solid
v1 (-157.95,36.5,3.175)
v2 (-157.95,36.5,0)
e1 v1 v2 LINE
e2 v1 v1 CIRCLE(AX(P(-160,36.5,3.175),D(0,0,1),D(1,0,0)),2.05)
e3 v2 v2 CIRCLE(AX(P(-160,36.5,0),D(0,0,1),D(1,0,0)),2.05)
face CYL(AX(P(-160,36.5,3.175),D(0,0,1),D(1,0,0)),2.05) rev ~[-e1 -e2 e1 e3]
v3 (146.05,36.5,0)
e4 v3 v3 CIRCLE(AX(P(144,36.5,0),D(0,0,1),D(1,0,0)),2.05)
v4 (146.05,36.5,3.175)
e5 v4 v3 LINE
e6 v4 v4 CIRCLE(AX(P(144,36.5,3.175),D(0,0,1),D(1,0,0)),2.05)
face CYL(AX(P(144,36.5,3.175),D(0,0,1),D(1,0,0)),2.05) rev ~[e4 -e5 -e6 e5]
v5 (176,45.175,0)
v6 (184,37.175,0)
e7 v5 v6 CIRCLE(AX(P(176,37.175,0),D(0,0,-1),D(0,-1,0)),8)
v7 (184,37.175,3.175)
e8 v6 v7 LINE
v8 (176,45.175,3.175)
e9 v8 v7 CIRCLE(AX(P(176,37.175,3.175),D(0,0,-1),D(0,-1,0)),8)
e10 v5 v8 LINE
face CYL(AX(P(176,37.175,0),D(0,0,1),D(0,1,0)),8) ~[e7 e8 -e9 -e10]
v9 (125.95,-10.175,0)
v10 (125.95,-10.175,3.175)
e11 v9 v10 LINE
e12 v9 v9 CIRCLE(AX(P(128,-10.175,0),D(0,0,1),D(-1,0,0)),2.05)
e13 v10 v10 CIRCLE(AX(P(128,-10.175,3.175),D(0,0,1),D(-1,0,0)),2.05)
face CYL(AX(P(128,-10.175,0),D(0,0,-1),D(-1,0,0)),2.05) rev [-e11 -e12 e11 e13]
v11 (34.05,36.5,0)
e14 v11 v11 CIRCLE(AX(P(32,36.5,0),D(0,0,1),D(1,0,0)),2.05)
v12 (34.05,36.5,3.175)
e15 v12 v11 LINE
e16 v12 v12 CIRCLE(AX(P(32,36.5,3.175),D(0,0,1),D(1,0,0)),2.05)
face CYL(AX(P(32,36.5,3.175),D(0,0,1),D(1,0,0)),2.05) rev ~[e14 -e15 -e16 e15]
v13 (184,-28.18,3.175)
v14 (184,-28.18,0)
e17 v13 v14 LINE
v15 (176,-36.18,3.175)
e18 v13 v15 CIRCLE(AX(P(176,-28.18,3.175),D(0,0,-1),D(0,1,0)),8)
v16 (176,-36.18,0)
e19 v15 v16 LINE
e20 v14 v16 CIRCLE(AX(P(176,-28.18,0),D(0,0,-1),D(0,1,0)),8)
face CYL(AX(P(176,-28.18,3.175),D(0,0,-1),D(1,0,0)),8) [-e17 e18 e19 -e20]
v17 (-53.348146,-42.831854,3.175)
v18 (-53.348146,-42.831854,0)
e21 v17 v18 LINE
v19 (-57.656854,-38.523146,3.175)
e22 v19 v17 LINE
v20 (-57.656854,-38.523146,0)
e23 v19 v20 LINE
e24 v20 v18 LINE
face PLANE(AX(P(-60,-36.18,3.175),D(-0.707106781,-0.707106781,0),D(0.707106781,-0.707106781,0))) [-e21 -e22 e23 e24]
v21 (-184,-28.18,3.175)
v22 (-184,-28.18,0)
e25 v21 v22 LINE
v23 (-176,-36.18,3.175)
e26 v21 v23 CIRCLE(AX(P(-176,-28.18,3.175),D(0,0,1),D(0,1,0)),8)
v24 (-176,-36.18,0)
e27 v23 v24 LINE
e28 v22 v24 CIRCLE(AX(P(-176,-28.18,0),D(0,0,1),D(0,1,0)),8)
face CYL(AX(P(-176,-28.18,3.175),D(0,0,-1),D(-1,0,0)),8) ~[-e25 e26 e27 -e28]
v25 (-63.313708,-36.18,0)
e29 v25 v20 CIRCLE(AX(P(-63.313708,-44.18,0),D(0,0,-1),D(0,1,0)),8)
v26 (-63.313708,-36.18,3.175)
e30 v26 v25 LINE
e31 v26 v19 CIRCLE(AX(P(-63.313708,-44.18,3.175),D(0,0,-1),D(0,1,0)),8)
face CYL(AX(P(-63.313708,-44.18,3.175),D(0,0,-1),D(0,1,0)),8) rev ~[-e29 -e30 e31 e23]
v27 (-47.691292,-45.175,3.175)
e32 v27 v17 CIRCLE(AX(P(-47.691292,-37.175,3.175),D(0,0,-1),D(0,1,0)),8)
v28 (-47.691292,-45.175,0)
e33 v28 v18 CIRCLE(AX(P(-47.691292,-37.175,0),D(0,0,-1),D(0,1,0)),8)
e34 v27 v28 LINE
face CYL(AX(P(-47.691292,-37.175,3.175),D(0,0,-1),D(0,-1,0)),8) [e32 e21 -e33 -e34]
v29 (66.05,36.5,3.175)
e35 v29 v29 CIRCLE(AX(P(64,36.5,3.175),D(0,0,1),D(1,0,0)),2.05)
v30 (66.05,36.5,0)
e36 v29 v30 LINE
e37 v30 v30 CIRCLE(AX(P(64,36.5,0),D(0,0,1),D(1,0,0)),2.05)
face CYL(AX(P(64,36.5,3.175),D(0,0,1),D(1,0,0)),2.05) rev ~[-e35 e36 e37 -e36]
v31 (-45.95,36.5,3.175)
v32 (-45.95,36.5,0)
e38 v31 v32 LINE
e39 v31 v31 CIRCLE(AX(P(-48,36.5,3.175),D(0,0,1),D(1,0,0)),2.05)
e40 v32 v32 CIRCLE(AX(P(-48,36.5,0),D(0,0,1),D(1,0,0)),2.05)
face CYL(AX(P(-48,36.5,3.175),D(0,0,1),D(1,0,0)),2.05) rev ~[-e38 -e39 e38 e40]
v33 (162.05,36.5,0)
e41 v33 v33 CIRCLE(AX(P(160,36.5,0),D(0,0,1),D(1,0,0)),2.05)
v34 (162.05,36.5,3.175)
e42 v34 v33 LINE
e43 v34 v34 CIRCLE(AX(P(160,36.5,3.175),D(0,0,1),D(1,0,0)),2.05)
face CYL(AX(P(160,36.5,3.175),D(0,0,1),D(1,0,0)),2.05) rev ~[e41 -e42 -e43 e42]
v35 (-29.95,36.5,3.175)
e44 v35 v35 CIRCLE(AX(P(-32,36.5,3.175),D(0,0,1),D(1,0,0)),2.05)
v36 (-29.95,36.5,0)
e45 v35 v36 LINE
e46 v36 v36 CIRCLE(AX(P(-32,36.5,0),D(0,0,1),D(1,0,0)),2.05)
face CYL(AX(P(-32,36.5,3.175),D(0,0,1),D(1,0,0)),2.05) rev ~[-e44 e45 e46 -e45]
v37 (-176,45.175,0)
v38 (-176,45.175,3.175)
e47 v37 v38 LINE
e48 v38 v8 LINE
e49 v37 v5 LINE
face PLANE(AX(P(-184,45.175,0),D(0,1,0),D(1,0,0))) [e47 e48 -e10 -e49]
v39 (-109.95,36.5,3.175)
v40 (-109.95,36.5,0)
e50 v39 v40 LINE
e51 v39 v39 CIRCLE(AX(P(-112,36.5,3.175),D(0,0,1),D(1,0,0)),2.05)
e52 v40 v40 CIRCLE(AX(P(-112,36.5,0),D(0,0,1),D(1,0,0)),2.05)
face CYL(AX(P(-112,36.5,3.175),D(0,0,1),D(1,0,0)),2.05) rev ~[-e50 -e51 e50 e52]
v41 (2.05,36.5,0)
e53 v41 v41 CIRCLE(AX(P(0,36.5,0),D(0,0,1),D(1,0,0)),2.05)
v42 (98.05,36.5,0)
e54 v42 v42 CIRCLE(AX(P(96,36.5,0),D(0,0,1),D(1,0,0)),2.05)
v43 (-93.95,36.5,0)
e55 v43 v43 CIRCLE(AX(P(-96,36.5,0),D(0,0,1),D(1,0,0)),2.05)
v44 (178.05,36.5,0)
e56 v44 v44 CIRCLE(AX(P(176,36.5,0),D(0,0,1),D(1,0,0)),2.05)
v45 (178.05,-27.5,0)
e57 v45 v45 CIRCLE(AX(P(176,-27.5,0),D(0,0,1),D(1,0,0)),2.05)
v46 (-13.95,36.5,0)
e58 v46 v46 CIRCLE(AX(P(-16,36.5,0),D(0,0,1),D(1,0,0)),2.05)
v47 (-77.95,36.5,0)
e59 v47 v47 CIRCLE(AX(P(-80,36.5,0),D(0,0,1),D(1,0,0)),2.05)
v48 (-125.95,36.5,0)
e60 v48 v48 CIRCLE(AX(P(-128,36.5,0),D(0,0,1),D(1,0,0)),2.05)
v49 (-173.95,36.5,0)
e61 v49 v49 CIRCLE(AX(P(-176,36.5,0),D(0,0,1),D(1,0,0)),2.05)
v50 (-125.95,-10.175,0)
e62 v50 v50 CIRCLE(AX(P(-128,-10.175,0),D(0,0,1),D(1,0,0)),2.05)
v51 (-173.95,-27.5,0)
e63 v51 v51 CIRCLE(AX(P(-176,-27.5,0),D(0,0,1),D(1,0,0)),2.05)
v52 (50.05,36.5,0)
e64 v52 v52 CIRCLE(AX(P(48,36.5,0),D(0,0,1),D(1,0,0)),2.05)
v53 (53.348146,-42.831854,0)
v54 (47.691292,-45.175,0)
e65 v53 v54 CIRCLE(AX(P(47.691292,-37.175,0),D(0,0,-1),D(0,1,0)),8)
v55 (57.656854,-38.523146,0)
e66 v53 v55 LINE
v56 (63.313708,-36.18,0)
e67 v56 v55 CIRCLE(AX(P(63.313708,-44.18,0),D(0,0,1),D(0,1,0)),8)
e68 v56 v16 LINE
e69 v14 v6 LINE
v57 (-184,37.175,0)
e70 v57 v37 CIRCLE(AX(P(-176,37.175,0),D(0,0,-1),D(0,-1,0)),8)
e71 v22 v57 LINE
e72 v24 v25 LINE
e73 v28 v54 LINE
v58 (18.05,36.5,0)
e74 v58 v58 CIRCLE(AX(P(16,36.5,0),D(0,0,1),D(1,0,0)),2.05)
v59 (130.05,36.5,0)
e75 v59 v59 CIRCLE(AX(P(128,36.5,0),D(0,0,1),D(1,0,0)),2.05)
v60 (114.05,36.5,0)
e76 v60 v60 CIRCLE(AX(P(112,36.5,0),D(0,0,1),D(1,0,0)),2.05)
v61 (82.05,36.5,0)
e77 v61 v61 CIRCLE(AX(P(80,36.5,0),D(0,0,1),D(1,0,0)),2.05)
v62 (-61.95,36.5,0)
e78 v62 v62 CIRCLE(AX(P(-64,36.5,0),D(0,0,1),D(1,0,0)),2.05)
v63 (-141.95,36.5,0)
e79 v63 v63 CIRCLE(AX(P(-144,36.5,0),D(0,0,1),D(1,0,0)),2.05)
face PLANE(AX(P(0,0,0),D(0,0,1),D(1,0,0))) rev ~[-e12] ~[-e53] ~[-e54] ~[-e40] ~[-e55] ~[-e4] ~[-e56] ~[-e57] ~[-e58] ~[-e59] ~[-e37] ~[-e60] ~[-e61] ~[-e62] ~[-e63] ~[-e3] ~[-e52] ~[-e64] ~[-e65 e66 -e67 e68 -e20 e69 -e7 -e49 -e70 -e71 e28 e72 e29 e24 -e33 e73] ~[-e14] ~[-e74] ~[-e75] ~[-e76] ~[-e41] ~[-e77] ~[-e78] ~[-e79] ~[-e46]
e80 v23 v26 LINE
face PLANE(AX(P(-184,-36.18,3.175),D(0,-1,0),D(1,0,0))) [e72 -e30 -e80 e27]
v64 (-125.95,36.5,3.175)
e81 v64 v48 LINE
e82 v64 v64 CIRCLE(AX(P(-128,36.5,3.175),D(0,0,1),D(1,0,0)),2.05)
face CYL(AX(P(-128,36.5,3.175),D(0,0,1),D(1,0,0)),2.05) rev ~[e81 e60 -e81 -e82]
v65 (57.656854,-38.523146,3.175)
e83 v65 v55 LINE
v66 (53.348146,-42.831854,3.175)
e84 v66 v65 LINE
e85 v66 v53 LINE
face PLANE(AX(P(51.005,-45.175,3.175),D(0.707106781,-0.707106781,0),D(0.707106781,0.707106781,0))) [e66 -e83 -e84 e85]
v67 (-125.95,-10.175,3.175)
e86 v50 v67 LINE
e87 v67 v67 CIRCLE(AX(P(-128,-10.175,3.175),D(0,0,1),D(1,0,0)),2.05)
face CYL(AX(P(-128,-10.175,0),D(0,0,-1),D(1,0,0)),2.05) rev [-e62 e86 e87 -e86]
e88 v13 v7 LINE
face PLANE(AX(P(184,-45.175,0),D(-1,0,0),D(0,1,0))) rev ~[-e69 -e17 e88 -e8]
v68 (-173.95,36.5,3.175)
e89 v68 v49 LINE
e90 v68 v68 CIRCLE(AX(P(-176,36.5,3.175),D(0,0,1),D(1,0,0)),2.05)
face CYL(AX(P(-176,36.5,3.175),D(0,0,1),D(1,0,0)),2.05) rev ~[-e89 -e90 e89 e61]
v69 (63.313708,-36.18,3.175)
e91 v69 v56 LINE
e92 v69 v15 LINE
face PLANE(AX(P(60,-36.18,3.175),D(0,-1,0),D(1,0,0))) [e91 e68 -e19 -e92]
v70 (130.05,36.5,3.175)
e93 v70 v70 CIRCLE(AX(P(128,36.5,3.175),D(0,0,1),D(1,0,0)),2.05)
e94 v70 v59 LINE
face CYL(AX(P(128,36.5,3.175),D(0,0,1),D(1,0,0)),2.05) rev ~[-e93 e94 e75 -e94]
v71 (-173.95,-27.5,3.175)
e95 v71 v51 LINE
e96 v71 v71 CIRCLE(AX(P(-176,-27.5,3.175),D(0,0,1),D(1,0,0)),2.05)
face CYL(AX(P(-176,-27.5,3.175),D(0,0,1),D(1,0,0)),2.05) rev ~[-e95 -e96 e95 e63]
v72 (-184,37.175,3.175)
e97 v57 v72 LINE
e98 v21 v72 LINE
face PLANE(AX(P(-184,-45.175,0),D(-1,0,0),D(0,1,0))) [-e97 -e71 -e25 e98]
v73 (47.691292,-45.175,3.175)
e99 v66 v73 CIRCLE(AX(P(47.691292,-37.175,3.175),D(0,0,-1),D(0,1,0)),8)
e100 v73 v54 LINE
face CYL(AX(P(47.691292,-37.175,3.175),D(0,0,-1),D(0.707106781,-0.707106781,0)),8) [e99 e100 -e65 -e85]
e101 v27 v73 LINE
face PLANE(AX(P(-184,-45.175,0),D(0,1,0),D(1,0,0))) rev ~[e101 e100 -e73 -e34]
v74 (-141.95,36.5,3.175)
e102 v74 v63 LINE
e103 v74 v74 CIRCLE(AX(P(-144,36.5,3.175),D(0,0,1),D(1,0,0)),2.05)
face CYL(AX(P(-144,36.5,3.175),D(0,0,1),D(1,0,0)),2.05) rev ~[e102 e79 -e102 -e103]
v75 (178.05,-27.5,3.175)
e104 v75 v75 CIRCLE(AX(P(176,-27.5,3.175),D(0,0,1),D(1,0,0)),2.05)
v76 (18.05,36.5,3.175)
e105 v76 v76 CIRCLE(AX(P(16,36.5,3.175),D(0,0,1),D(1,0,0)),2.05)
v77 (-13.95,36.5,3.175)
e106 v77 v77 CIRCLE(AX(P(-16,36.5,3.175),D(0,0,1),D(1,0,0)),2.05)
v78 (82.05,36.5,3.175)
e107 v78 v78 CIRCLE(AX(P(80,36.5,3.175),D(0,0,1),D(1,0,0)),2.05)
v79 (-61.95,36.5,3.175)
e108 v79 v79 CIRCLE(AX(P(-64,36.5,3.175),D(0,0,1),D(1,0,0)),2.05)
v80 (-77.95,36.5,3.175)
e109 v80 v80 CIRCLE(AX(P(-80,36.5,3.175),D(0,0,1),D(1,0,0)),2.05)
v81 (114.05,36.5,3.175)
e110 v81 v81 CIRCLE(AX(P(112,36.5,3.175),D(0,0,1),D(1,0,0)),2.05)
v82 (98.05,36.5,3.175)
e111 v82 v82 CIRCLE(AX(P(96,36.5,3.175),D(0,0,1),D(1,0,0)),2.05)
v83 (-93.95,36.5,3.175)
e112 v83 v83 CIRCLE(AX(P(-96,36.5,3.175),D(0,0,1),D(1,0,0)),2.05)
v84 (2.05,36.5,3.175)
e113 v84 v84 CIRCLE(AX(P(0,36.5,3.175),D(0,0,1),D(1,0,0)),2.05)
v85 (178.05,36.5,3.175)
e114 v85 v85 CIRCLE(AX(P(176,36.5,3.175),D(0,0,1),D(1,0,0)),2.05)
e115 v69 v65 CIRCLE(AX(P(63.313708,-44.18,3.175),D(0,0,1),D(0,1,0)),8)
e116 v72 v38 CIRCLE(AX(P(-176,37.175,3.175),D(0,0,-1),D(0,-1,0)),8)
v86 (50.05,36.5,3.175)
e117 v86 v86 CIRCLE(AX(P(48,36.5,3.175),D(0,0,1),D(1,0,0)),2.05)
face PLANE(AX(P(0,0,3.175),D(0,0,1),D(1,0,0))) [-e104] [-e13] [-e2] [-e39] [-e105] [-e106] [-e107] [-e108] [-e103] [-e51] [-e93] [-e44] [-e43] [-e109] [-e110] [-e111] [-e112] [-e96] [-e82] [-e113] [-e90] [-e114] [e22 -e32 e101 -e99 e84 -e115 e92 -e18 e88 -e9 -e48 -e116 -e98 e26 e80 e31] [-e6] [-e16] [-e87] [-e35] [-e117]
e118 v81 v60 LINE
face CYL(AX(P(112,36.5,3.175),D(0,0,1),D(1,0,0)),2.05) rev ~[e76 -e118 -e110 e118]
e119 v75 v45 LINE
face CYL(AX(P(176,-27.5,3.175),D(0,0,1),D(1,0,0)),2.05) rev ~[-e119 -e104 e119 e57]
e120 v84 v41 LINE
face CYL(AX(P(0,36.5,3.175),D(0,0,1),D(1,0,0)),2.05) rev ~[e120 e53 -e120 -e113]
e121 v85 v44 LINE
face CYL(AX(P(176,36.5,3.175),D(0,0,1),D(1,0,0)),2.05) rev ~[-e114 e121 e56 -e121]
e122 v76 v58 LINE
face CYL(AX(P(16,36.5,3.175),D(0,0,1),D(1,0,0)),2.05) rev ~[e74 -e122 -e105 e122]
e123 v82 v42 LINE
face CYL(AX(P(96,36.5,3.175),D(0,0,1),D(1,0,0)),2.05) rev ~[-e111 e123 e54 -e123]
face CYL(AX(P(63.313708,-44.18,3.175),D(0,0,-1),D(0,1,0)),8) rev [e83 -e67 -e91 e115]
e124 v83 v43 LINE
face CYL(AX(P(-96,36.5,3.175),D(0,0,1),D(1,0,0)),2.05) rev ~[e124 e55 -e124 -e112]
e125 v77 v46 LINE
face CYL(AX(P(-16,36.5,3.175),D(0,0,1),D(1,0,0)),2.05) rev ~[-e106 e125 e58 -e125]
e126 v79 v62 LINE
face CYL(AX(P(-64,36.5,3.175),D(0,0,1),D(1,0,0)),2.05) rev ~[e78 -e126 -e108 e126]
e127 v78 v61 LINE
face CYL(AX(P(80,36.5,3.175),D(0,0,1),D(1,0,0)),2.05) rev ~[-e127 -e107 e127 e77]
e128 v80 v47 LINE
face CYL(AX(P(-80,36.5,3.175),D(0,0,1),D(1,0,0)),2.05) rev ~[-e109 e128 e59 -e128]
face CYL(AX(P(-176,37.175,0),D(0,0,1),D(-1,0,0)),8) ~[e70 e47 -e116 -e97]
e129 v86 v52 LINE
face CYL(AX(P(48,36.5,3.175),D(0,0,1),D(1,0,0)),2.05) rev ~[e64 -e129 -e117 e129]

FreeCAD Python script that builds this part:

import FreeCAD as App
import Part
import Sketcher
Q = App.Units.Quantity


def edges_at(feature, points):
    """Names of the edges that pass closest to the given points."""
    edges = feature.Shape.Edges
    near = lambda p: min(range(len(edges)), key=lambda i: edges[i].distToShape(Part.Vertex(*p))[0])
    return sorted({f"Edge{near(p) + 1}" for p in points})


def add_polygon(sketch, points):
    """Adds a closed chain of lines whose ends are joined by coincident constraints."""
    first, n = sketch.GeometryCount, len(points)
    for a, b in zip(points, points[1:] + points[:1]):
        sketch.addGeometry(Part.LineSegment(App.Vector(*a, 0), App.Vector(*b, 0)), False)
    for i in range(n):
        sketch.addConstraint(Sketcher.Constraint("Coincident", first + i, 2, first + (i + 1) % n, 1))

doc = App.newDocument("Part")
body = doc.addObject("PartDesign::Body", "Body")

sketch1 = body.newObject("Sketcher::SketchObject", "Sketch")
sketch1.AttachmentSupport = (doc.getObject("XY_Plane"), [""])
sketch1.MapMode = "FlatFace"
add_polygon(sketch1, [(-184, 45.175), (-184, -45.175), (184, -45.175), (184, 45.175)])
sketch1.addGeometry(Part.Circle(App.Vector(-128, -10.175, 0), App.Vector(0, 0, 1), 2.05), False)
sketch1.addGeometry(Part.Circle(App.Vector(128, -10.175, 0), App.Vector(0, 0, 1), 2.05), False)
sketch1.addConstraint([
    Sketcher.Constraint("Vertical", 0),
    Sketcher.Constraint("Horizontal", 1),
    Sketcher.Constraint("Vertical", 2),
    Sketcher.Constraint("Horizontal", 3),
    Sketcher.Constraint("Equal", 4, 5),
    Sketcher.Constraint("Symmetric", 0, 2, 2, 2, -1, 1),
    Sketcher.Constraint("Symmetric", 4, 3, 5, 3, -2),
    Sketcher.Constraint("Diameter", 4, Q("4.1 mm")),
    Sketcher.Constraint("DistanceX", 1, 1, 1, 2, Q("368 mm")),
    Sketcher.Constraint("DistanceX", 4, 3, -1, 1, Q("128 mm")),
    Sketcher.Constraint("DistanceY", 0, 2, 4, 3, Q("35 mm")),
    Sketcher.Constraint("DistanceY", 0, 2, 0, 1, Q("90.35 mm")),
])
pad1 = body.newObject("PartDesign::Pad", "Pad")
pad1.Profile = sketch1
pad1.Length = 3.175

sketch2 = body.newObject("Sketcher::SketchObject", "Sketch001")
sketch2.AttachmentSupport = (doc.getObject("XY_Plane"), [""])
sketch2.MapMode = "FlatFace"
sketch2.AttachmentOffset = App.Placement(App.Vector(0, 0, 3.175), App.Rotation())
sketch2.addGeometry([
    Part.Circle(App.Vector(-176, 36.5, 0), App.Vector(0, 0, 1), 2.05),
    Part.Circle(App.Vector(-160, 36.5, 0), App.Vector(0, 0, 1), 2.05),
    Part.Circle(App.Vector(-144, 36.5, 0), App.Vector(0, 0, 1), 2.05),
    Part.Circle(App.Vector(-128, 36.5, 0), App.Vector(0, 0, 1), 2.05),
    Part.Circle(App.Vector(-112, 36.5, 0), App.Vector(0, 0, 1), 2.05),
    Part.Circle(App.Vector(-96, 36.5, 0), App.Vector(0, 0, 1), 2.05),
    Part.Circle(App.Vector(-80, 36.5, 0), App.Vector(0, 0, 1), 2.05),
    Part.Circle(App.Vector(-64, 36.5, 0), App.Vector(0, 0, 1), 2.05),
    Part.Circle(App.Vector(-48, 36.5, 0), App.Vector(0, 0, 1), 2.05),
    Part.Circle(App.Vector(-32, 36.5, 0), App.Vector(0, 0, 1), 2.05),
    Part.Circle(App.Vector(-16, 36.5, 0), App.Vector(0, 0, 1), 2.05),
    Part.Circle(App.Vector(0, 36.5, 0), App.Vector(0, 0, 1), 2.05),
    Part.Circle(App.Vector(16, 36.5, 0), App.Vector(0, 0, 1), 2.05),
    Part.Circle(App.Vector(32, 36.5, 0), App.Vector(0, 0, 1), 2.05),
    Part.Circle(App.Vector(48, 36.5, 0), App.Vector(0, 0, 1), 2.05),
    Part.Circle(App.Vector(64, 36.5, 0), App.Vector(0, 0, 1), 2.05),
    Part.Circle(App.Vector(80, 36.5, 0), App.Vector(0, 0, 1), 2.05),
    Part.Circle(App.Vector(96, 36.5, 0), App.Vector(0, 0, 1), 2.05),
    Part.Circle(App.Vector(112, 36.5, 0), App.Vector(0, 0, 1), 2.05),
    Part.Circle(App.Vector(128, 36.5, 0), App.Vector(0, 0, 1), 2.05),
    Part.Circle(App.Vector(144, 36.5, 0), App.Vector(0, 0, 1), 2.05),
    Part.Circle(App.Vector(160, 36.5, 0), App.Vector(0, 0, 1), 2.05),
    Part.Circle(App.Vector(176, 36.5, 0), App.Vector(0, 0, 1), 2.05),
    Part.Circle(App.Vector(176, -27.5, 0), App.Vector(0, 0, 1), 2.05),
    Part.Circle(App.Vector(-176, -27.5, 0), App.Vector(0, 0, 1), 2.05),
], False)
sketch2.addConstraint([
    Sketcher.Constraint("Equal", 0, 1),
    Sketcher.Constraint("Equal", 1, 2),
    Sketcher.Constraint("Equal", 2, 3),
    Sketcher.Constraint("Equal", 3, 4),
    Sketcher.Constraint("Equal", 4, 5),
    Sketcher.Constraint("Equal", 5, 6),
    Sketcher.Constraint("Equal", 6, 7),
    Sketcher.Constraint("Equal", 7, 8),
    Sketcher.Constraint("Equal", 8, 9),
    Sketcher.Constraint("Equal", 9, 10),
    Sketcher.Constraint("Equal", 10, 11),
    Sketcher.Constraint("Equal", 11, 12),
    Sketcher.Constraint("Equal", 12, 13),
    Sketcher.Constraint("Equal", 13, 14),
    Sketcher.Constraint("Equal", 14, 15),
    Sketcher.Constraint("Equal", 15, 16),
    Sketcher.Constraint("Equal", 16, 17),
    Sketcher.Constraint("Equal", 17, 18),
    Sketcher.Constraint("Equal", 18, 19),
    Sketcher.Constraint("Equal", 19, 20),
    Sketcher.Constraint("Equal", 20, 21),
    Sketcher.Constraint("Equal", 21, 22),
    Sketcher.Constraint("Equal", 22, 23),
    Sketcher.Constraint("Equal", 23, 24),
    Sketcher.Constraint("Symmetric", 10, 3, 12, 3, -2),
    Sketcher.Constraint("Symmetric", 9, 3, 13, 3, -2),
    Sketcher.Constraint("Symmetric", 8, 3, 14, 3, -2),
    Sketcher.Constraint("Symmetric", 7, 3, 15, 3, -2),
    Sketcher.Constraint("Symmetric", 6, 3, 16, 3, -2),
    Sketcher.Constraint("Symmetric", 5, 3, 17, 3, -2),
    Sketcher.Constraint("Symmetric", 4, 3, 18, 3, -2),
    Sketcher.Constraint("Symmetric", 3, 3, 19, 3, -2),
    Sketcher.Constraint("Symmetric", 2, 3, 20, 3, -2),
    Sketcher.Constraint("Symmetric", 1, 3, 21, 3, -2),
    Sketcher.Constraint("Symmetric", 0, 3, 22, 3, -2),
    Sketcher.Constraint("Symmetric", 23, 3, 24, 3, -2),
    Sketcher.Constraint("PointOnObject", 11, 3, -2),
    Sketcher.Constraint("Horizontal", 0, 3, 1, 3),
    Sketcher.Constraint("Horizontal", 1, 3, 2, 3),
    Sketcher.Constraint("Horizontal", 2, 3, 3, 3),
    Sketcher.Constraint("Horizontal", 3, 3, 4, 3),
    Sketcher.Constraint("Horizontal", 4, 3, 5, 3),
    Sketcher.Constraint("Horizontal", 5, 3, 6, 3),
    Sketcher.Constraint("Horizontal", 6, 3, 7, 3),
    Sketcher.Constraint("Horizontal", 7, 3, 8, 3),
    Sketcher.Constraint("Horizontal", 8, 3, 9, 3),
    Sketcher.Constraint("Horizontal", 9, 3, 10, 3),
    Sketcher.Constraint("Horizontal", 10, 3, 11, 3),
    Sketcher.Constraint("Vertical", 22, 3, 23, 3),
    Sketcher.Constraint("Diameter", 0, Q("4.1 mm")),
    Sketcher.Constraint("DistanceX", 0, 3, -1, 1, Q("176 mm")),
    Sketcher.Constraint("DistanceX", 1, 3, -1, 1, Q("160 mm")),
    Sketcher.Constraint("DistanceX", 2, 3, -1, 1, Q("144 mm")),
    Sketcher.Constraint("DistanceX", 3, 3, -1, 1, Q("128 mm")),
    Sketcher.Constraint("DistanceX", 4, 3, -1, 1, Q("112 mm")),
    Sketcher.Constraint("DistanceX", 5, 3, -1, 1, Q("96 mm")),
    Sketcher.Constraint("DistanceX", 6, 3, -1, 1, Q("80 mm")),
    Sketcher.Constraint("DistanceX", 7, 3, -1, 1, Q("64 mm")),
    Sketcher.Constraint("DistanceX", 8, 3, -1, 1, Q("48 mm")),
    Sketcher.Constraint("DistanceX", 9, 3, -1, 1, Q("32 mm")),
    Sketcher.Constraint("DistanceX", 10, 3, -1, 1, Q("16 mm")),
    Sketcher.Constraint("DistanceY", 23, 3, 22, 3, Q("64 mm")),
    Sketcher.Constraint("DistanceY", -1, 1, 0, 3, Q("36.5 mm")),
])
pocket1 = body.newObject("PartDesign::Pocket", "Pocket")
pocket1.Profile = sketch2
pocket1.Length = 3.18

sketch3 = body.newObject("Sketcher::SketchObject", "Sketch002")
sketch3.AttachmentSupport = (doc.getObject("XY_Plane"), [""])
sketch3.MapMode = "FlatFace"
sketch3.AttachmentOffset = App.Placement(App.Vector(0, 0, 3.175), App.Rotation())
add_polygon(sketch3, [(-60, -36.18), (-184, -36.18), (-184, -45.175), (-51.005, -45.175)])
add_polygon(sketch3, [(184, -45.175), (184, -36.18), (60, -36.18), (51.005, -45.175)])
sketch3.addConstraint([
    Sketcher.Constraint("Horizontal", 0),
    Sketcher.Constraint("Vertical", 1),
    Sketcher.Constraint("Horizontal", 2),
    Sketcher.Constraint("Vertical", 4),
    Sketcher.Constraint("Horizontal", 5),
    Sketcher.Constraint("Horizontal", 7),
    Sketcher.Constraint("Symmetric", 0, 2, 4, 2, -2),
    Sketcher.Constraint("Symmetric", 2, 2, 6, 2, -2),
    Sketcher.Constraint("Perpendicular", 3, 6),
    Sketcher.Constraint("Equal", 0, 5),
    Sketcher.Constraint("DistanceX", 0, 2, 0, 1, Q("124 mm")),
    Sketcher.Constraint("DistanceX", 0, 2, -1, 1, Q("184 mm")),
    Sketcher.Constraint("DistanceX", 2, 1, 2, 2, Q("132.995 mm")),
    Sketcher.Constraint("DistanceY", 0, 2, -1, 1, Q("36.18 mm")),
])
pocket2 = body.newObject("PartDesign::Pocket", "Pocket001")
pocket2.Profile = sketch3
pocket2.Length = 10
doc.recompute()

fillet = body.newObject("PartDesign::Fillet", "Fillet")
fillet.Base = (pocket2, edges_at(pocket2, [
    (184, -36.18, 1.587),
    (-51.005, -45.175, 1.587),
    (-184, -36.18, 1.587),
    (-60, -36.18, 1.587),
    (60, -36.18, 1.587),
    (51.005, -45.175, 1.587),
    (-184, 45.175, 1.587),
    (184, 45.175, 1.587),
]))
fillet.Radius = 8

doc.recompute()
